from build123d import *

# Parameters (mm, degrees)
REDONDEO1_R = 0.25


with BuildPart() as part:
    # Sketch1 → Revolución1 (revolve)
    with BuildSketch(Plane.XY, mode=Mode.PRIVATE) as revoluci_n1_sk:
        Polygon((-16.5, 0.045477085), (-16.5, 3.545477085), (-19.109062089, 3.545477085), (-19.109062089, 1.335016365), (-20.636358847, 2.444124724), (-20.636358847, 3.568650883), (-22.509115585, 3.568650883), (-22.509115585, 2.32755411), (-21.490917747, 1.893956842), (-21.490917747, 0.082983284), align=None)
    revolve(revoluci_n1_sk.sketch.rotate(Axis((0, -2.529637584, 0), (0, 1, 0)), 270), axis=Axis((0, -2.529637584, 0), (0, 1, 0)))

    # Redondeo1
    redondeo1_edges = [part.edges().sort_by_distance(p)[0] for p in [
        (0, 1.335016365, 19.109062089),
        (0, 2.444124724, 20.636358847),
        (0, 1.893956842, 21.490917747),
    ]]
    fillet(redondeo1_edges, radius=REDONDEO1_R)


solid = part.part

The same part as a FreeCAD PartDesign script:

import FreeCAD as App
import Part
import Sketcher

V = App.Vector
Q = App.Units.Quantity


def edges_at(feature, points):
    """Names of the edges that pass closest to the given points."""
    edges = feature.Shape.Edges
    near = lambda p: min(range(len(edges)), key=lambda i: edges[i].distToShape(Part.Vertex(*p))[0])
    return sorted({f"Edge{near(p) + 1}" for p in points})

doc = App.newDocument("Part")
body = doc.addObject("PartDesign::Body", "Body")

# Sketch on XY plane
sketch1 = body.newObject("Sketcher::SketchObject", "Sketch")
sketch1.AttachmentSupport = (doc.getObject("XY_Plane"), [""])
sketch1.MapMode = "FlatFace"
sketch1.addGeometry(Part.LineSegment(V(-16.5, 0, 0), V(-16.5, 3.5, 0)), False)
sketch1.addGeometry(Part.LineSegment(V(-16.5, 3.5, 0), V(-19.1, 3.5, 0)), False)
sketch1.addGeometry(Part.LineSegment(V(-19.1, 3.5, 0), V(-19.1, 1.3, 0)), False)
sketch1.addGeometry(Part.LineSegment(V(-19.1, 1.3, 0), V(-20.6, 2.4, 0)), False)
sketch1.addGeometry(Part.LineSegment(V(-20.6, 2.4, 0), V(-20.6, 3.6, 0)), False)
sketch1.addGeometry(Part.LineSegment(V(-20.6, 3.6, 0), V(-22.5, 3.6, 0)), False)
sketch1.addGeometry(Part.LineSegment(V(-22.5, 3.6, 0), V(-22.5, 2.3, 0)), False)
sketch1.addGeometry(Part.LineSegment(V(-22.5, 2.3, 0), V(-21.5, 1.9, 0)), False)
sketch1.addGeometry(Part.LineSegment(V(-21.5, 1.9, 0), V(-21.5, 0.1, 0)), False)
sketch1.addGeometry(Part.LineSegment(V(-21.5, 0.1, 0), V(-16.5, 0, 0)), False)
sketch1.addConstraint(Sketcher.Constraint("Coincident", 0, 2, 1, 1))
sketch1.addConstraint(Sketcher.Constraint("Coincident", 1, 2, 2, 1))
sketch1.addConstraint(Sketcher.Constraint("Coincident", 2, 2, 3, 1))
sketch1.addConstraint(Sketcher.Constraint("Coincident", 3, 2, 4, 1))
sketch1.addConstraint(Sketcher.Constraint("Coincident", 4, 2, 5, 1))
sketch1.addConstraint(Sketcher.Constraint("Coincident", 5, 2, 6, 1))
sketch1.addConstraint(Sketcher.Constraint("Coincident", 6, 2, 7, 1))
sketch1.addConstraint(Sketcher.Constraint("Coincident", 7, 2, 8, 1))
sketch1.addConstraint(Sketcher.Constraint("Coincident", 8, 2, 9, 1))
sketch1.addConstraint(Sketcher.Constraint("Coincident", 9, 2, 0, 1))
sketch1.addConstraint(Sketcher.Constraint("Vertical", 0))
sketch1.addConstraint(Sketcher.Constraint("Horizontal", 1))
sketch1.addConstraint(Sketcher.Constraint("Vertical", 2))
sketch1.addConstraint(Sketcher.Constraint("Vertical", 4))
sketch1.addConstraint(Sketcher.Constraint("Horizontal", 5))
sketch1.addConstraint(Sketcher.Constraint("Vertical", 6))
sketch1.addConstraint(Sketcher.Constraint("Vertical", 8))
sketch1.addConstraint(Sketcher.Constraint("DistanceY", 0, 1, 0, 2, Q("3.5 mm")))
sketch1.addConstraint(Sketcher.Constraint("DistanceX", 0, 2, -1, 1, Q("16.5 mm")))
sketch1.addConstraint(Sketcher.Constraint("DistanceY", 2, 2, 2, 1, Q("2.210461 mm")))
sketch1.addConstraint(Sketcher.Constraint("Distance", 9, Q("4.991059 mm")))
sketch1.addConstraint(Sketcher.Constraint("DistanceX", 1, 2, 1, 1, Q("2.609062 mm")))
sketch1.addConstraint(Sketcher.Constraint("DistanceX", 5, 2, 5, 1, Q("1.872757 mm")))
sketch1.addConstraint(Sketcher.Constraint("DistanceY", 4, 1, 4, 2, Q("1.124526 mm")))
sketch1.addConstraint(Sketcher.Constraint("DistanceY", 6, 2, 6, 1, Q("1.241097 mm")))
sketch1.addConstraint(Sketcher.Constraint("DistanceY", 8, 2, 8, 1, Q("1.810974 mm")))
sketch1.addConstraint(Sketcher.Constraint("DistanceX", 3, 2, -1, 1, Q("20.636359 mm")))
sketch1.addConstraint(Sketcher.Constraint("DistanceY", -1, 1, 4, 2, Q("3.568651 mm")))
sketch1.addConstraint(Sketcher.Constraint("DistanceY", 2, 2, 3, 2, Q("1.109108 mm")))
sketch1.addConstraint(Sketcher.Constraint("DistanceX", 7, 2, 3, 2, Q("0.854559 mm")))
revolution = body.newObject("PartDesign::Revolution", "Revolution")
revolution.Profile = sketch1
revolution.ReferenceAxis = (sketch1, ["V_Axis"])
revolution.Angle = 360
doc.recompute()

fillet = body.newObject("PartDesign::Fillet", "Fillet")
fillet.Base = (revolution, edges_at(revolution, [(0, 1.335, 19.109), (0, 2.444, 20.636), (0, 1.894, 21.491)]))
fillet.Radius = 0.25

doc.recompute()
